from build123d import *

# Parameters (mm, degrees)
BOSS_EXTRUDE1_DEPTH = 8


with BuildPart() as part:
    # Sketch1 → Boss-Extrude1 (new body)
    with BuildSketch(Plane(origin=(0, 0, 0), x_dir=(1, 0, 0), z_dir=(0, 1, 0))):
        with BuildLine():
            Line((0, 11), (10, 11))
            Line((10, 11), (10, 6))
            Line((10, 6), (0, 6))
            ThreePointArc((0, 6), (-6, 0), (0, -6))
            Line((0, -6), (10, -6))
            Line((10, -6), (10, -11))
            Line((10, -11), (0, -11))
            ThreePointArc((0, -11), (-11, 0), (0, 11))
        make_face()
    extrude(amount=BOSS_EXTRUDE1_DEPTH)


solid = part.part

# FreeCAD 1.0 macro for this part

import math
import FreeCAD as App
import Part
import Sketcher
from FreeCAD import Vector

doc = App.newDocument("Part")
body = doc.addObject("PartDesign::Body", "Body")

sketch1 = doc.addObject("Sketcher::SketchObject", "Sketch")
body.addObject(sketch1)
sketch1.AttachmentSupport = (doc.XZ_Plane, [""])
sketch1.MapMode = "FlatFace"
sketch1.addGeometry(Part.LineSegment(Vector(10, -11, 0), Vector(0, -11, 0)), False)
sketch1.addGeometry(Part.ArcOfCircle(Part.Circle(Vector(0, 0, 0), Vector(0, 0, 1), 11), math.radians(90), math.radians(270)), False)
sketch1.addGeometry(Part.LineSegment(Vector(0, 11, 0), Vector(10, 11, 0)), False)
sketch1.addGeometry(Part.LineSegment(Vector(10, 11, 0), Vector(10, 6, 0)), False)
sketch1.addGeometry(Part.LineSegment(Vector(10, 6, 0), Vector(0, 6, 0)), False)
sketch1.addGeometry(Part.ArcOfCircle(Part.Circle(Vector(0, 0, 0), Vector(0, 0, 1), 6), math.radians(90), math.radians(270)), False)
sketch1.addGeometry(Part.LineSegment(Vector(0, -6, 0), Vector(10, -6, 0)), False)
sketch1.addGeometry(Part.LineSegment(Vector(10, -6, 0), Vector(10, -11, 0)), False)
sketch1.addConstraint(Sketcher.Constraint("Tangent", 0, 2, 1, 2))
sketch1.addConstraint(Sketcher.Constraint("Tangent", 1, 1, 2, 1))
sketch1.addConstraint(Sketcher.Constraint("Coincident", 2, 2, 3, 1))
sketch1.addConstraint(Sketcher.Constraint("Coincident", 3, 2, 4, 1))
sketch1.addConstraint(Sketcher.Constraint("Tangent", 4, 2, 5, 1))
sketch1.addConstraint(Sketcher.Constraint("Tangent", 5, 2, 6, 1))
sketch1.addConstraint(Sketcher.Constraint("Coincident", 6, 2, 7, 1))
sketch1.addConstraint(Sketcher.Constraint("Coincident", 7, 2, 0, 1))
sketch1.addConstraint(Sketcher.Constraint("Horizontal", 0))
sketch1.addConstraint(Sketcher.Constraint("Horizontal", 2))
sketch1.addConstraint(Sketcher.Constraint("Vertical", 3))
sketch1.addConstraint(Sketcher.Constraint("Horizontal", 4))
sketch1.addConstraint(Sketcher.Constraint("Horizontal", 6))
sketch1.addConstraint(Sketcher.Constraint("Vertical", 7))
sketch1.addConstraint(Sketcher.Constraint("Coincident", 1, 3, -1, 1))
sketch1.addConstraint(Sketcher.Constraint("Coincident", 5, 3, -1, 1))
sketch1.addConstraint(Sketcher.Constraint("Vertical", 3, 2, 6, 2))
sketch1.addConstraint(Sketcher.Constraint("Radius", 1, 11.0))
sketch1.addConstraint(Sketcher.Constraint("Radius", 5, 6.0))
sketch1.addConstraint(Sketcher.Constraint("DistanceX", 0, 2, 0, 1, 10.0))
pad1 = doc.addObject("PartDesign::Pad", "Pad")
body.addObject(pad1)
pad1.Profile = sketch1
pad1.Length = 8
pad1.Reversed = True

doc.recompute()
